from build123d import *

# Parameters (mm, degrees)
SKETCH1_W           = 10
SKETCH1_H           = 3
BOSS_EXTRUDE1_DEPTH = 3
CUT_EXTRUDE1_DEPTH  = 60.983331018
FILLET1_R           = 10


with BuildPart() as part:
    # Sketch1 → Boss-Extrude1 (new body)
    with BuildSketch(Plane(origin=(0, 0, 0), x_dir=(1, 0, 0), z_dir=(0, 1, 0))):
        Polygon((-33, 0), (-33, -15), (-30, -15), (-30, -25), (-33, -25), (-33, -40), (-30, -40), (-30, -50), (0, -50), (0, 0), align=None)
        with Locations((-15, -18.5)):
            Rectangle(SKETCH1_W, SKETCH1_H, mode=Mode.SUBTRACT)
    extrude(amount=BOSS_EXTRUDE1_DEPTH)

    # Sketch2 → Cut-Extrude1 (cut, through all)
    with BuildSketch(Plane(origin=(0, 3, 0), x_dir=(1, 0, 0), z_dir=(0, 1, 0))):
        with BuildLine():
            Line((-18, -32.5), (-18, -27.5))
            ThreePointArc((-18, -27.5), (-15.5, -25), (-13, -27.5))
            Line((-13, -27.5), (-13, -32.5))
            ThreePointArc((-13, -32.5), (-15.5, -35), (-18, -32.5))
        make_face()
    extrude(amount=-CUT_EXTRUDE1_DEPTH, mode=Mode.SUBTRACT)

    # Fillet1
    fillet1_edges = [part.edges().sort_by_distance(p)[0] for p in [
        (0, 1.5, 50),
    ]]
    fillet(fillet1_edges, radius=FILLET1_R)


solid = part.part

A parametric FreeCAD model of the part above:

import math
import FreeCAD as App
import Part
import Sketcher

V = App.Vector
Q = App.Units.Quantity


def edges_at(feature, points):
    """Names of the edges that pass closest to the given points."""
    edges = feature.Shape.Edges
    near = lambda p: min(range(len(edges)), key=lambda i: edges[i].distToShape(Part.Vertex(*p))[0])
    return sorted({f"Edge{near(p) + 1}" for p in points})


def add_polygon(sketch, points):
    """Adds a closed chain of lines whose ends are joined by coincident constraints."""
    first, n = sketch.GeometryCount, len(points)
    for a, b in zip(points, points[1:] + points[:1]):
        sketch.addGeometry(Part.LineSegment(App.Vector(*a, 0), App.Vector(*b, 0)), False)
    for i in range(n):
        sketch.addConstraint(Sketcher.Constraint("Coincident", first + i, 2, first + (i + 1) % n, 1))

doc = App.newDocument("Part")
body = doc.addObject("PartDesign::Body", "Body")

sketch1 = body.newObject("Sketcher::SketchObject", "Sketch")
sketch1.AttachmentSupport = (doc.getObject("XZ_Plane"), [""])
sketch1.MapMode = "FlatFace"
add_polygon(sketch1, [(-33, 0), (-33, 15), (-30, 15), (-30, 25), (-33, 25), (-33, 40), (-30, 40), (-30, 50), (0, 50), (0, 0)])
add_polygon(sketch1, [(-10, 20), (-20, 20), (-20, 17), (-10, 17)])
sketch1.addConstraint(Sketcher.Constraint("Vertical", 0))
sketch1.addConstraint(Sketcher.Constraint("Horizontal", 1))
sketch1.addConstraint(Sketcher.Constraint("Vertical", 2))
sketch1.addConstraint(Sketcher.Constraint("Horizontal", 3))
sketch1.addConstraint(Sketcher.Constraint("Vertical", 4))
sketch1.addConstraint(Sketcher.Constraint("Horizontal", 5))
sketch1.addConstraint(Sketcher.Constraint("Vertical", 6))
sketch1.addConstraint(Sketcher.Constraint("Horizontal", 7))
sketch1.addConstraint(Sketcher.Constraint("Vertical", 8))
sketch1.addConstraint(Sketcher.Constraint("Horizontal", 9))
sketch1.addConstraint(Sketcher.Constraint("Horizontal", 10))
sketch1.addConstraint(Sketcher.Constraint("Vertical", 11))
sketch1.addConstraint(Sketcher.Constraint("Horizontal", 12))
sketch1.addConstraint(Sketcher.Constraint("Vertical", 13))
sketch1.addConstraint(Sketcher.Constraint("Coincident", 8, 2, -1, 1))
sketch1.addConstraint(Sketcher.Constraint("Vertical", 0, 2, 3, 2))
sketch1.addConstraint(Sketcher.Constraint("Vertical", 2, 2, 5, 2))
sketch1.addConstraint(Sketcher.Constraint("Equal", 12, 2))
sketch1.addConstraint(Sketcher.Constraint("Equal", 0, 4))
sketch1.addConstraint(Sketcher.Constraint("Equal", 2, 6))
sketch1.addConstraint(Sketcher.Constraint("Equal", 5, 11))
sketch1.addConstraint(Sketcher.Constraint("DistanceX", 1, 1, 1, 2, Q("3 mm")))
sketch1.addConstraint(Sketcher.Constraint("DistanceX", 7, 1, 7, 2, Q("30 mm")))
sketch1.addConstraint(Sketcher.Constraint("DistanceX", 10, 2, 10, 1, Q("10 mm")))
sketch1.addConstraint(Sketcher.Constraint("DistanceY", 0, 1, 0, 2, Q("15 mm")))
sketch1.addConstraint(Sketcher.Constraint("DistanceX", 10, 2, -1, 1, Q("20 mm")))
sketch1.addConstraint(Sketcher.Constraint("DistanceY", -1, 1, 10, 2, Q("20 mm")))
pad1 = body.newObject("PartDesign::Pad", "Pad")
pad1.Profile = sketch1
pad1.Length = 3
pad1.Reversed = True

sketch2 = body.newObject("Sketcher::SketchObject", "Sketch001")
sketch2.AttachmentSupport = (doc.getObject("XZ_Plane"), [""])
sketch2.MapMode = "FlatFace"
sketch2.AttachmentOffset = App.Placement(V(0, 0, -3), App.Rotation())
sketch2.addGeometry(Part.LineSegment(V(-18, 27.5, 0), V(-18, 32.5, 0)), False)
sketch2.addGeometry(Part.ArcOfCircle(Part.Circle(V(-15.5, 32.5, 0), V(0, 0, 1), 2.5), math.radians(0), math.radians(180)), False)
sketch2.addGeometry(Part.LineSegment(V(-13, 32.5, 0), V(-13, 27.5, 0)), False)
sketch2.addGeometry(Part.ArcOfCircle(Part.Circle(V(-15.5, 27.5, 0), V(0, 0, 1), 2.5), math.radians(180), math.radians(360)), False)
sketch2.addConstraint(Sketcher.Constraint("Tangent", 0, 2, 1, 2))
sketch2.addConstraint(Sketcher.Constraint("Tangent", 1, 1, 2, 1))
sketch2.addConstraint(Sketcher.Constraint("Tangent", 2, 2, 3, 2))
sketch2.addConstraint(Sketcher.Constraint("Tangent", 3, 1, 0, 1))
sketch2.addConstraint(Sketcher.Constraint("Vertical", 0))
sketch2.addConstraint(Sketcher.Constraint("Vertical", 2))
sketch2.addConstraint(Sketcher.Constraint("Radius", 1, Q("2.5 mm")))
sketch2.addConstraint(Sketcher.Constraint("DistanceY", 0, 1, 0, 2, Q("5 mm")))
sketch2.addConstraint(Sketcher.Constraint("DistanceX", 0, 2, -1, 1, Q("18 mm")))
sketch2.addConstraint(Sketcher.Constraint("DistanceY", -1, 1, 1, 3, Q("32.5 mm")))
pocket1 = body.newObject("PartDesign::Pocket", "Pocket")
pocket1.Profile = sketch2
pocket1.Type = "ThroughAll"
pocket1.Reversed = True
doc.recompute()

fillet = body.newObject("PartDesign::Fillet", "Fillet")
fillet.Base = (pocket1, edges_at(pocket1, [(0, 1.5, 50)]))
fillet.Radius = 10

doc.recompute()
